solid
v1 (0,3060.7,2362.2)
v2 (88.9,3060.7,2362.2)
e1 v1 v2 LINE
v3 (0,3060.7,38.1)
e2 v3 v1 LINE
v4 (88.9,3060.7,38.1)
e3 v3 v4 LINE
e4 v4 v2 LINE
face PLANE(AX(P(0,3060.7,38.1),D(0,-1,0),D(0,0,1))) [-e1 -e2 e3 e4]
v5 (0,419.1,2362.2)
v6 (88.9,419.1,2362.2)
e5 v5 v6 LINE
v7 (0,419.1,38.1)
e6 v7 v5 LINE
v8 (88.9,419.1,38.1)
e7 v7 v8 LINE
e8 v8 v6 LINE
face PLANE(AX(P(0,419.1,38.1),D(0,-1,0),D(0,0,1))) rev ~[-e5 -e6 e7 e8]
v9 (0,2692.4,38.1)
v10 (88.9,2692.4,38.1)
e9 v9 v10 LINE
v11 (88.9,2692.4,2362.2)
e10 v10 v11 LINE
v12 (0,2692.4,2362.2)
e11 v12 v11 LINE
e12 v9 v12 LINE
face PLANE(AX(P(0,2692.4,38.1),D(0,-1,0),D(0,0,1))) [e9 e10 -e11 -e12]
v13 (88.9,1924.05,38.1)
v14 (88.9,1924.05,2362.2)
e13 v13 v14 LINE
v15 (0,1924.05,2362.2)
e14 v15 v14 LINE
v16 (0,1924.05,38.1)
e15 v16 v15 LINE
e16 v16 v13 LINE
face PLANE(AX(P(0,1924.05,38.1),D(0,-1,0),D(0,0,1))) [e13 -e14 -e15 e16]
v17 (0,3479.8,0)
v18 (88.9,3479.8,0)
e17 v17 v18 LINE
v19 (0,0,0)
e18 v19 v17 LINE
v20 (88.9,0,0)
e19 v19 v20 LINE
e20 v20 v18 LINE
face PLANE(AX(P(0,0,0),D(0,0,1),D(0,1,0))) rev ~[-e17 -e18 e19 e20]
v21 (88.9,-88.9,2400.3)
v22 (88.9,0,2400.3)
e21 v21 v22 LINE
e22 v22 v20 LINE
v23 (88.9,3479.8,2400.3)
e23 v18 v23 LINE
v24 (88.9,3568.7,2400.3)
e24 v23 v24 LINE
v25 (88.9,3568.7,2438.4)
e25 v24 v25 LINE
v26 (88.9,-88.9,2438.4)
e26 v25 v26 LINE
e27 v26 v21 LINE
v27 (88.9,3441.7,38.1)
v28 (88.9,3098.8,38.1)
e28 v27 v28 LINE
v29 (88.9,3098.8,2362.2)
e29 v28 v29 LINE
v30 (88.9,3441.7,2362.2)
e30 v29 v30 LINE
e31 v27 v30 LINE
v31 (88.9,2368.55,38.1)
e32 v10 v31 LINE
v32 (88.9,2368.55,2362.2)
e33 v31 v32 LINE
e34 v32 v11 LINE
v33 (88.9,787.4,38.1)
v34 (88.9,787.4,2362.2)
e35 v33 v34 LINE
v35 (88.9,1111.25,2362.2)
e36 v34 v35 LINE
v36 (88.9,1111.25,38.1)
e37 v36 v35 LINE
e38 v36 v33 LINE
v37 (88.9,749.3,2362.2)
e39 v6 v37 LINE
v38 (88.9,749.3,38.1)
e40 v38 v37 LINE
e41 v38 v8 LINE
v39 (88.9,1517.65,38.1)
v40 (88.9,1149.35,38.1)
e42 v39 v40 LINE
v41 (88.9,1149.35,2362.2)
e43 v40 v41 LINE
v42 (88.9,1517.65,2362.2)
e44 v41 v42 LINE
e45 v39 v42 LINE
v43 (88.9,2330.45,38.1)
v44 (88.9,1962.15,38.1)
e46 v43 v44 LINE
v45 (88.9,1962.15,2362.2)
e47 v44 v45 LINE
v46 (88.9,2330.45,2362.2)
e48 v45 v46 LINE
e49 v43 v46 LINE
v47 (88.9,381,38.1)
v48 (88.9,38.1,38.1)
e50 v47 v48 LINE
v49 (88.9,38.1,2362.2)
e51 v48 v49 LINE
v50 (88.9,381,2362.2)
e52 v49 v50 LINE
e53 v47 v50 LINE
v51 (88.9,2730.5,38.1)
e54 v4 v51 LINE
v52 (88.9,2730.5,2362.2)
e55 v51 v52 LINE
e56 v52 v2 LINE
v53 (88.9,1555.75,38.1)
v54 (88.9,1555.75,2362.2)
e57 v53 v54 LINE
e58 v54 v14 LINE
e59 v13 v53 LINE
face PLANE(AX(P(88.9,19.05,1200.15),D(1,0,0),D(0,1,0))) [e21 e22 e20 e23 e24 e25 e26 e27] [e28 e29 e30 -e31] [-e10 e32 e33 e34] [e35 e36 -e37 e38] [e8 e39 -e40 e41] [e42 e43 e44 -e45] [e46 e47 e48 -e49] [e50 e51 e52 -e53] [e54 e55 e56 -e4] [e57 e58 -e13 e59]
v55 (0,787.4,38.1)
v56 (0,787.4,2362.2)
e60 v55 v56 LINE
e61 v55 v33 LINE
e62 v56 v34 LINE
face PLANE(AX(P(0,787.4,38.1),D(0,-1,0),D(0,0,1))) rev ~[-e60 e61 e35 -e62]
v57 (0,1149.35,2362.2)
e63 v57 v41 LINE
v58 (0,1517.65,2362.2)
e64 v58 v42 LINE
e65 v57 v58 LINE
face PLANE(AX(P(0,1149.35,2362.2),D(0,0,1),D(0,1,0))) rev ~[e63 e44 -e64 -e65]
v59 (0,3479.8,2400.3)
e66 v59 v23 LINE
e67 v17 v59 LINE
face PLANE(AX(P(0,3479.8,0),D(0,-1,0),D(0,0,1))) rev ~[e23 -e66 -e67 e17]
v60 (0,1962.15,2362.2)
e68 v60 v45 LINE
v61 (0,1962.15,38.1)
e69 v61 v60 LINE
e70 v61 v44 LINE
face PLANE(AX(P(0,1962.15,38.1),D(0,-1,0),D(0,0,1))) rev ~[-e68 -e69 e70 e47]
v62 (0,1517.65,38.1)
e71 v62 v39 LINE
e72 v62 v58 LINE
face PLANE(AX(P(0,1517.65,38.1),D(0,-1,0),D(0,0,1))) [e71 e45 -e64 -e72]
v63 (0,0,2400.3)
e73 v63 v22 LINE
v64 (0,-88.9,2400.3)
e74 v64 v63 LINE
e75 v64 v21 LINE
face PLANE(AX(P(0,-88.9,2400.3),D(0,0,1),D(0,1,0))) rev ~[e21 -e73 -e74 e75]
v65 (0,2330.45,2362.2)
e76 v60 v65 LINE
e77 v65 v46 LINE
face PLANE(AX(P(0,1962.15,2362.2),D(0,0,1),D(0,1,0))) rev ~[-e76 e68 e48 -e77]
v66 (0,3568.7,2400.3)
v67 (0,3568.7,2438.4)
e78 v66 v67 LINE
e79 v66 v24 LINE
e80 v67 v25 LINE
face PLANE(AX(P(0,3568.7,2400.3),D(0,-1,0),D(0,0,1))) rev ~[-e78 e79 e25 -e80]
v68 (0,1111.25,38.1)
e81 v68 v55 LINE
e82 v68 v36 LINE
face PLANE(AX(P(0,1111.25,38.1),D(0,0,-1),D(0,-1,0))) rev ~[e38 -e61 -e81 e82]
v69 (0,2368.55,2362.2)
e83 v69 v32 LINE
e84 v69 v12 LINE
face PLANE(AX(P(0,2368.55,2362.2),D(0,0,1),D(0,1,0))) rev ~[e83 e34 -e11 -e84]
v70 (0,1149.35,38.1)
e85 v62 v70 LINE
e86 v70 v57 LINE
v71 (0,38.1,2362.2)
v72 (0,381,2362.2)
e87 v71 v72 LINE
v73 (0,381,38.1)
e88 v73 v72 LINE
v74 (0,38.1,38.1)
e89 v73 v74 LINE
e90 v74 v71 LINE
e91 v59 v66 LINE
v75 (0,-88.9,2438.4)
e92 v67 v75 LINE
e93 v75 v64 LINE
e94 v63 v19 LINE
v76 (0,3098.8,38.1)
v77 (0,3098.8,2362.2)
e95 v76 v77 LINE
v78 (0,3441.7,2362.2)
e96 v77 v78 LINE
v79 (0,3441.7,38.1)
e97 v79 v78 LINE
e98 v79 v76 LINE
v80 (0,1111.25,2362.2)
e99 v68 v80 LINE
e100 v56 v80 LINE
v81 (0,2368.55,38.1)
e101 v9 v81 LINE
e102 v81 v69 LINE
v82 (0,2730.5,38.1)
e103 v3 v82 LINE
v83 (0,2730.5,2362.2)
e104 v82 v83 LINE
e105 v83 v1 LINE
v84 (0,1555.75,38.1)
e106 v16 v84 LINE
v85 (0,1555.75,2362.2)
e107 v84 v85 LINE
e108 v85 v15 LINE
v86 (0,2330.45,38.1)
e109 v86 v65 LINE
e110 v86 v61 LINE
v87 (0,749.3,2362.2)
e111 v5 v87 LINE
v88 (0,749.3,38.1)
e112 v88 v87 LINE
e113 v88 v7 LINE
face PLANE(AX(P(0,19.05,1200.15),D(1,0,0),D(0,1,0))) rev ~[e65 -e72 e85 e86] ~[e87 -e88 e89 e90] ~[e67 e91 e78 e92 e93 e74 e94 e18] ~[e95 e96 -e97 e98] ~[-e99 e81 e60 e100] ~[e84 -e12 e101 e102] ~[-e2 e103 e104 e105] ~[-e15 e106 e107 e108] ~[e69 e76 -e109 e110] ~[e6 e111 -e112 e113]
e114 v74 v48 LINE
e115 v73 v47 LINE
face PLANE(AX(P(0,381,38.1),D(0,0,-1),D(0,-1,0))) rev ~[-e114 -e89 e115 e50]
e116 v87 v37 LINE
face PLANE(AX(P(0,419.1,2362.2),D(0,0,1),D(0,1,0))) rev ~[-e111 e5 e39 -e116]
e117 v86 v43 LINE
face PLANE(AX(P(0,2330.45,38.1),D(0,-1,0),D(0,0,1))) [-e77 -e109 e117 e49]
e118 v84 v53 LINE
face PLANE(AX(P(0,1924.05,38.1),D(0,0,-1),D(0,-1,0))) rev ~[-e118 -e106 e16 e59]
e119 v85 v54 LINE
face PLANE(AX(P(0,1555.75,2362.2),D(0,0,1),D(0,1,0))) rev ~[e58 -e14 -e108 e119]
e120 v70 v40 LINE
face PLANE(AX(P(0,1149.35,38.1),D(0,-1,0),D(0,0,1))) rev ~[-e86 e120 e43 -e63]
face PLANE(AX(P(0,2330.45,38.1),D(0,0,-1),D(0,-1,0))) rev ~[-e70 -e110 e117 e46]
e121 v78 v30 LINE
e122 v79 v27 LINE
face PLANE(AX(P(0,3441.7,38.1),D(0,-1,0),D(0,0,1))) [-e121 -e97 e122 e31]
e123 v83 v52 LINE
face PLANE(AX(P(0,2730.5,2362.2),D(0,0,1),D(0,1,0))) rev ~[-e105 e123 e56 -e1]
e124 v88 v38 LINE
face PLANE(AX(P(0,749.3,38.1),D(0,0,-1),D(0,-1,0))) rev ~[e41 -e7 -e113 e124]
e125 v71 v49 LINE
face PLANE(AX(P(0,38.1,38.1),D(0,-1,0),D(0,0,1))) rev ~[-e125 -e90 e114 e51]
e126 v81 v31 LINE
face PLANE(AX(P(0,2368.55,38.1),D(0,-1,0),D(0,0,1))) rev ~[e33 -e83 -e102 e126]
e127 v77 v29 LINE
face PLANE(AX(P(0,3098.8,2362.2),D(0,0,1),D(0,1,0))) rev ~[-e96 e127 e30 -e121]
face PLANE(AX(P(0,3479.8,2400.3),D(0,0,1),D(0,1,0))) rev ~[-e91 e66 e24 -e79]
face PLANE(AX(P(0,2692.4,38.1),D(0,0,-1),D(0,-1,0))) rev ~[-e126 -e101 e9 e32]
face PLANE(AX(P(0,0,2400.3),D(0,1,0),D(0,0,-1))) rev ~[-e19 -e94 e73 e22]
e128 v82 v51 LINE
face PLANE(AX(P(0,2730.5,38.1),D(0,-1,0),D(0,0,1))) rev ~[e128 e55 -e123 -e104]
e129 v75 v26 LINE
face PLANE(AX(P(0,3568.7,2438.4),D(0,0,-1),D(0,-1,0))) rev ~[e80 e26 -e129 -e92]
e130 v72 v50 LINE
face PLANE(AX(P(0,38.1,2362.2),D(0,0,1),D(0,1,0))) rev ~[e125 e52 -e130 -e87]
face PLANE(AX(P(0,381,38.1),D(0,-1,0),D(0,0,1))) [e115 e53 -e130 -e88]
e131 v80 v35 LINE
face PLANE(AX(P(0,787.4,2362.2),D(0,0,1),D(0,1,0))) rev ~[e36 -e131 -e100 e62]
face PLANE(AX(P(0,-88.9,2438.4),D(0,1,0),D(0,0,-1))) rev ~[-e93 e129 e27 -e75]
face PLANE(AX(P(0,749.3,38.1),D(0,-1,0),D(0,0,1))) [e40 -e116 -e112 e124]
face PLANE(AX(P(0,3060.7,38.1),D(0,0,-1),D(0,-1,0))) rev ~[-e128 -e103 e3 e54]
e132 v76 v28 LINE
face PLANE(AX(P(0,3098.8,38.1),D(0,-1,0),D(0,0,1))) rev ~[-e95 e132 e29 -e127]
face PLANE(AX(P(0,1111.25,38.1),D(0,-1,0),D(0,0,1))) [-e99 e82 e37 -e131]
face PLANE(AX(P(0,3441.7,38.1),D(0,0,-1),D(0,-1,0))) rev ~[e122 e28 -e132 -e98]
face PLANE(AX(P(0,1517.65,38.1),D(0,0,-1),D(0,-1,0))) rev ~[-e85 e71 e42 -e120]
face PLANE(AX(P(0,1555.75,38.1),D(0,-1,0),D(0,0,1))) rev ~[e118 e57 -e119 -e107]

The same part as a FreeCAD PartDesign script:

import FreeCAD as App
import Part
import Sketcher

V = App.Vector
Q = App.Units.Quantity


def add_polygon(sketch, points):
    """Adds a closed chain of lines whose ends are joined by coincident constraints."""
    first, n = sketch.GeometryCount, len(points)
    for a, b in zip(points, points[1:] + points[:1]):
        sketch.addGeometry(Part.LineSegment(App.Vector(*a, 0), App.Vector(*b, 0)), False)
    for i in range(n):
        sketch.addConstraint(Sketcher.Constraint("Coincident", first + i, 2, first + (i + 1) % n, 1))

doc = App.newDocument("Part")
body = doc.addObject("PartDesign::Body", "Body")

sketch1 = body.newObject("Sketcher::SketchObject", "Sketch")
sketch1.AttachmentSupport = (doc.getObject("YZ_Plane"), [""])
sketch1.MapMode = "FlatFace"
add_polygon(sketch1, [(3480, 2400), (3569, 2400), (3569, 2438), (-89, 2438), (-89, 2400), (0, 2400), (0, 0), (3480, 0)])
add_polygon(sketch1, [(38, 38), (38, 2362), (381, 2362), (381, 38)])
add_polygon(sketch1, [(419, 38), (419, 2362), (749, 2362), (749, 38)])
add_polygon(sketch1, [(787, 38), (787, 2362), (1111, 2362), (1111, 38)])
add_polygon(sketch1, [(1149, 38), (1149, 2362), (1518, 2362), (1518, 38)])
add_polygon(sketch1, [(1556, 2362), (1924, 2362), (1924, 38), (1556, 38)])
add_polygon(sketch1, [(1962, 2362), (2330, 2362), (2330, 38), (1962, 38)])
add_polygon(sketch1, [(2369, 38), (2369, 2362), (2692, 2362), (2692, 38)])
add_polygon(sketch1, [(2730, 38), (2730, 2362), (3061, 2362), (3061, 38)])
add_polygon(sketch1, [(3099, 38), (3099, 2362), (3442, 2362), (3442, 38)])
sketch1.addConstraint([
    Sketcher.Constraint("Horizontal", 0),
    Sketcher.Constraint("Vertical", 1),
    Sketcher.Constraint("Horizontal", 2),
    Sketcher.Constraint("Vertical", 3),
    Sketcher.Constraint("Horizontal", 4),
    Sketcher.Constraint("Vertical", 5),
    Sketcher.Constraint("Horizontal", 6),
    Sketcher.Constraint("Vertical", 7),
    Sketcher.Constraint("Vertical", 8),
    Sketcher.Constraint("Horizontal", 9),
    Sketcher.Constraint("Vertical", 10),
    Sketcher.Constraint("Horizontal", 11),
    Sketcher.Constraint("Vertical", 12),
    Sketcher.Constraint("Horizontal", 13),
    Sketcher.Constraint("Vertical", 14),
    Sketcher.Constraint("Horizontal", 15),
    Sketcher.Constraint("Vertical", 16),
    Sketcher.Constraint("Horizontal", 17),
    Sketcher.Constraint("Vertical", 18),
    Sketcher.Constraint("Horizontal", 19),
    Sketcher.Constraint("Vertical", 20),
    Sketcher.Constraint("Horizontal", 21),
    Sketcher.Constraint("Vertical", 22),
    Sketcher.Constraint("Horizontal", 23),
    Sketcher.Constraint("Horizontal", 24),
    Sketcher.Constraint("Vertical", 25),
    Sketcher.Constraint("Horizontal", 26),
    Sketcher.Constraint("Vertical", 27),
    Sketcher.Constraint("Horizontal", 28),
    Sketcher.Constraint("Vertical", 29),
    Sketcher.Constraint("Horizontal", 30),
    Sketcher.Constraint("Vertical", 31),
    Sketcher.Constraint("Vertical", 32),
    Sketcher.Constraint("Horizontal", 33),
    Sketcher.Constraint("Vertical", 34),
    Sketcher.Constraint("Horizontal", 35),
    Sketcher.Constraint("Vertical", 36),
    Sketcher.Constraint("Horizontal", 37),
    Sketcher.Constraint("Vertical", 38),
    Sketcher.Constraint("Horizontal", 39),
    Sketcher.Constraint("Vertical", 40),
    Sketcher.Constraint("Horizontal", 41),
    Sketcher.Constraint("Vertical", 42),
    Sketcher.Constraint("Horizontal", 43),
    Sketcher.Constraint("Coincident", 5, 2, -1, 1),
    Sketcher.Constraint("Horizontal", 0, 2, 3, 2),
    Sketcher.Constraint("Horizontal", 9, 2, 12, 2),
    Sketcher.Constraint("Horizontal", 11, 2, 14, 2),
    Sketcher.Constraint("Horizontal", 13, 2, 16, 2),
    Sketcher.Constraint("Horizontal", 15, 2, 18, 2),
    Sketcher.Constraint("Horizontal", 17, 2, 20, 2),
    Sketcher.Constraint("Horizontal", 19, 2, 22, 2),
    Sketcher.Constraint("Horizontal", 21, 2, 24, 2),
    Sketcher.Constraint("Horizontal", 23, 2, 25, 2),
    Sketcher.Constraint("Horizontal", 27, 2, 28, 2),
    Sketcher.Constraint("Horizontal", 26, 2, 29, 2),
    Sketcher.Constraint("Horizontal", 31, 2, 32, 2),
    Sketcher.Constraint("Horizontal", 30, 2, 34, 2),
    Sketcher.Constraint("Horizontal", 33, 2, 36, 2),
    Sketcher.Constraint("Horizontal", 35, 2, 38, 2),
    Sketcher.Constraint("Horizontal", 37, 2, 40, 2),
    Sketcher.Constraint("Horizontal", 39, 2, 42, 2),
    Sketcher.Constraint("Equal", 0, 4),
    Sketcher.Constraint("Equal", 23, 24),
    Sketcher.Constraint("Equal", 26, 28),
    Sketcher.Constraint("Equal", 19, 33),
    Sketcher.Constraint("Equal", 15, 37),
    Sketcher.Constraint("Equal", 11, 41),
    Sketcher.Constraint("DistanceX", 2, 2, 2, 1, Q("144 in")),
    Sketcher.Constraint("DistanceX", 6, 1, 6, 2, Q("137 in")),
    Sketcher.Constraint("DistanceX", 13, 1, 13, 2, Q("13 in")),
    Sketcher.Constraint("DistanceX", 9, 1, 9, 2, Q("13.5 in")),
    Sketcher.Constraint("DistanceX", 21, 1, 21, 2, Q("14.5 in")),
    Sketcher.Constraint("DistanceY", 1, 1, 1, 2, Q("1.5 in")),
    Sketcher.Constraint("DistanceY", 5, 2, 5, 1, Q("94.5 in")),
    Sketcher.Constraint("DistanceY", 8, 1, 8, 2, Q("91.5 in")),
    Sketcher.Constraint("DistanceY", -1, 1, 8, 2, Q("93 in")),
    Sketcher.Constraint("DistanceX", -1, 1, 9, 2, Q("15 in")),
    Sketcher.Constraint("DistanceX", -1, 1, 16, 2, Q("31 in")),
    Sketcher.Constraint("DistanceX", -1, 1, 33, 2, Q("106 in")),
    Sketcher.Constraint("DistanceX", -1, 1, 40, 2, Q("122 in")),
    Sketcher.Constraint("DistanceX", 8, 2, 12, 2, Q("15 in")),
    Sketcher.Constraint("DistanceX", 17, 2, 21, 2, Q("16 in")),
    Sketcher.Constraint("DistanceX", 21, 2, 24, 2, Q("16 in")),
    Sketcher.Constraint("DistanceX", 24, 2, 28, 2, Q("16 in")),
    Sketcher.Constraint("DistanceX", 31, 2, 32, 2, Q("16 in")),
    Sketcher.Constraint("DistanceX", 37, 2, 0, 2, Q("20 in")),
])
pad1 = body.newObject("PartDesign::Pad", "Pad")
pad1.Profile = sketch1
pad1.Length = Q("3.5 in")

doc.recompute()
